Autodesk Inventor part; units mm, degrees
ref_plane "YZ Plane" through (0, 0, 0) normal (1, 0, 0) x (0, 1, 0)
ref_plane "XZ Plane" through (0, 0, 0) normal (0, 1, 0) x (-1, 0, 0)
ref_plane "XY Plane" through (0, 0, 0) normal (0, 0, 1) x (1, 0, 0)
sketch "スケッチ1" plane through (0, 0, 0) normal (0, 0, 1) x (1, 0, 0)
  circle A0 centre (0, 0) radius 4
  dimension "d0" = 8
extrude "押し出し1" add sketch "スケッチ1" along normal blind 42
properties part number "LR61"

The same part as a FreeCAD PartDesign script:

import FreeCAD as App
import Part
import Sketcher
from FreeCAD import Vector

doc = App.newDocument("Part")
body = doc.addObject("PartDesign::Body", "Body")

# Sketch on XY plane
sketch1 = doc.addObject("Sketcher::SketchObject", "Sketch")
body.addObject(sketch1)
sketch1.AttachmentSupport = (doc.XY_Plane, [""])
sketch1.MapMode = "FlatFace"
sketch1.addGeometry(Part.Circle(Vector(0, 0, 0), Vector(0, 0, 1), 4), False)
sketch1.addConstraint([
    Sketcher.Constraint("Coincident", 0, 3, -1, 1),
    Sketcher.Constraint("Diameter", 0, 8.0),
])
pad1 = doc.addObject("PartDesign::Pad", "Pad")
body.addObject(pad1)
pad1.Profile = sketch1
pad1.Length = 42

doc.recompute()
